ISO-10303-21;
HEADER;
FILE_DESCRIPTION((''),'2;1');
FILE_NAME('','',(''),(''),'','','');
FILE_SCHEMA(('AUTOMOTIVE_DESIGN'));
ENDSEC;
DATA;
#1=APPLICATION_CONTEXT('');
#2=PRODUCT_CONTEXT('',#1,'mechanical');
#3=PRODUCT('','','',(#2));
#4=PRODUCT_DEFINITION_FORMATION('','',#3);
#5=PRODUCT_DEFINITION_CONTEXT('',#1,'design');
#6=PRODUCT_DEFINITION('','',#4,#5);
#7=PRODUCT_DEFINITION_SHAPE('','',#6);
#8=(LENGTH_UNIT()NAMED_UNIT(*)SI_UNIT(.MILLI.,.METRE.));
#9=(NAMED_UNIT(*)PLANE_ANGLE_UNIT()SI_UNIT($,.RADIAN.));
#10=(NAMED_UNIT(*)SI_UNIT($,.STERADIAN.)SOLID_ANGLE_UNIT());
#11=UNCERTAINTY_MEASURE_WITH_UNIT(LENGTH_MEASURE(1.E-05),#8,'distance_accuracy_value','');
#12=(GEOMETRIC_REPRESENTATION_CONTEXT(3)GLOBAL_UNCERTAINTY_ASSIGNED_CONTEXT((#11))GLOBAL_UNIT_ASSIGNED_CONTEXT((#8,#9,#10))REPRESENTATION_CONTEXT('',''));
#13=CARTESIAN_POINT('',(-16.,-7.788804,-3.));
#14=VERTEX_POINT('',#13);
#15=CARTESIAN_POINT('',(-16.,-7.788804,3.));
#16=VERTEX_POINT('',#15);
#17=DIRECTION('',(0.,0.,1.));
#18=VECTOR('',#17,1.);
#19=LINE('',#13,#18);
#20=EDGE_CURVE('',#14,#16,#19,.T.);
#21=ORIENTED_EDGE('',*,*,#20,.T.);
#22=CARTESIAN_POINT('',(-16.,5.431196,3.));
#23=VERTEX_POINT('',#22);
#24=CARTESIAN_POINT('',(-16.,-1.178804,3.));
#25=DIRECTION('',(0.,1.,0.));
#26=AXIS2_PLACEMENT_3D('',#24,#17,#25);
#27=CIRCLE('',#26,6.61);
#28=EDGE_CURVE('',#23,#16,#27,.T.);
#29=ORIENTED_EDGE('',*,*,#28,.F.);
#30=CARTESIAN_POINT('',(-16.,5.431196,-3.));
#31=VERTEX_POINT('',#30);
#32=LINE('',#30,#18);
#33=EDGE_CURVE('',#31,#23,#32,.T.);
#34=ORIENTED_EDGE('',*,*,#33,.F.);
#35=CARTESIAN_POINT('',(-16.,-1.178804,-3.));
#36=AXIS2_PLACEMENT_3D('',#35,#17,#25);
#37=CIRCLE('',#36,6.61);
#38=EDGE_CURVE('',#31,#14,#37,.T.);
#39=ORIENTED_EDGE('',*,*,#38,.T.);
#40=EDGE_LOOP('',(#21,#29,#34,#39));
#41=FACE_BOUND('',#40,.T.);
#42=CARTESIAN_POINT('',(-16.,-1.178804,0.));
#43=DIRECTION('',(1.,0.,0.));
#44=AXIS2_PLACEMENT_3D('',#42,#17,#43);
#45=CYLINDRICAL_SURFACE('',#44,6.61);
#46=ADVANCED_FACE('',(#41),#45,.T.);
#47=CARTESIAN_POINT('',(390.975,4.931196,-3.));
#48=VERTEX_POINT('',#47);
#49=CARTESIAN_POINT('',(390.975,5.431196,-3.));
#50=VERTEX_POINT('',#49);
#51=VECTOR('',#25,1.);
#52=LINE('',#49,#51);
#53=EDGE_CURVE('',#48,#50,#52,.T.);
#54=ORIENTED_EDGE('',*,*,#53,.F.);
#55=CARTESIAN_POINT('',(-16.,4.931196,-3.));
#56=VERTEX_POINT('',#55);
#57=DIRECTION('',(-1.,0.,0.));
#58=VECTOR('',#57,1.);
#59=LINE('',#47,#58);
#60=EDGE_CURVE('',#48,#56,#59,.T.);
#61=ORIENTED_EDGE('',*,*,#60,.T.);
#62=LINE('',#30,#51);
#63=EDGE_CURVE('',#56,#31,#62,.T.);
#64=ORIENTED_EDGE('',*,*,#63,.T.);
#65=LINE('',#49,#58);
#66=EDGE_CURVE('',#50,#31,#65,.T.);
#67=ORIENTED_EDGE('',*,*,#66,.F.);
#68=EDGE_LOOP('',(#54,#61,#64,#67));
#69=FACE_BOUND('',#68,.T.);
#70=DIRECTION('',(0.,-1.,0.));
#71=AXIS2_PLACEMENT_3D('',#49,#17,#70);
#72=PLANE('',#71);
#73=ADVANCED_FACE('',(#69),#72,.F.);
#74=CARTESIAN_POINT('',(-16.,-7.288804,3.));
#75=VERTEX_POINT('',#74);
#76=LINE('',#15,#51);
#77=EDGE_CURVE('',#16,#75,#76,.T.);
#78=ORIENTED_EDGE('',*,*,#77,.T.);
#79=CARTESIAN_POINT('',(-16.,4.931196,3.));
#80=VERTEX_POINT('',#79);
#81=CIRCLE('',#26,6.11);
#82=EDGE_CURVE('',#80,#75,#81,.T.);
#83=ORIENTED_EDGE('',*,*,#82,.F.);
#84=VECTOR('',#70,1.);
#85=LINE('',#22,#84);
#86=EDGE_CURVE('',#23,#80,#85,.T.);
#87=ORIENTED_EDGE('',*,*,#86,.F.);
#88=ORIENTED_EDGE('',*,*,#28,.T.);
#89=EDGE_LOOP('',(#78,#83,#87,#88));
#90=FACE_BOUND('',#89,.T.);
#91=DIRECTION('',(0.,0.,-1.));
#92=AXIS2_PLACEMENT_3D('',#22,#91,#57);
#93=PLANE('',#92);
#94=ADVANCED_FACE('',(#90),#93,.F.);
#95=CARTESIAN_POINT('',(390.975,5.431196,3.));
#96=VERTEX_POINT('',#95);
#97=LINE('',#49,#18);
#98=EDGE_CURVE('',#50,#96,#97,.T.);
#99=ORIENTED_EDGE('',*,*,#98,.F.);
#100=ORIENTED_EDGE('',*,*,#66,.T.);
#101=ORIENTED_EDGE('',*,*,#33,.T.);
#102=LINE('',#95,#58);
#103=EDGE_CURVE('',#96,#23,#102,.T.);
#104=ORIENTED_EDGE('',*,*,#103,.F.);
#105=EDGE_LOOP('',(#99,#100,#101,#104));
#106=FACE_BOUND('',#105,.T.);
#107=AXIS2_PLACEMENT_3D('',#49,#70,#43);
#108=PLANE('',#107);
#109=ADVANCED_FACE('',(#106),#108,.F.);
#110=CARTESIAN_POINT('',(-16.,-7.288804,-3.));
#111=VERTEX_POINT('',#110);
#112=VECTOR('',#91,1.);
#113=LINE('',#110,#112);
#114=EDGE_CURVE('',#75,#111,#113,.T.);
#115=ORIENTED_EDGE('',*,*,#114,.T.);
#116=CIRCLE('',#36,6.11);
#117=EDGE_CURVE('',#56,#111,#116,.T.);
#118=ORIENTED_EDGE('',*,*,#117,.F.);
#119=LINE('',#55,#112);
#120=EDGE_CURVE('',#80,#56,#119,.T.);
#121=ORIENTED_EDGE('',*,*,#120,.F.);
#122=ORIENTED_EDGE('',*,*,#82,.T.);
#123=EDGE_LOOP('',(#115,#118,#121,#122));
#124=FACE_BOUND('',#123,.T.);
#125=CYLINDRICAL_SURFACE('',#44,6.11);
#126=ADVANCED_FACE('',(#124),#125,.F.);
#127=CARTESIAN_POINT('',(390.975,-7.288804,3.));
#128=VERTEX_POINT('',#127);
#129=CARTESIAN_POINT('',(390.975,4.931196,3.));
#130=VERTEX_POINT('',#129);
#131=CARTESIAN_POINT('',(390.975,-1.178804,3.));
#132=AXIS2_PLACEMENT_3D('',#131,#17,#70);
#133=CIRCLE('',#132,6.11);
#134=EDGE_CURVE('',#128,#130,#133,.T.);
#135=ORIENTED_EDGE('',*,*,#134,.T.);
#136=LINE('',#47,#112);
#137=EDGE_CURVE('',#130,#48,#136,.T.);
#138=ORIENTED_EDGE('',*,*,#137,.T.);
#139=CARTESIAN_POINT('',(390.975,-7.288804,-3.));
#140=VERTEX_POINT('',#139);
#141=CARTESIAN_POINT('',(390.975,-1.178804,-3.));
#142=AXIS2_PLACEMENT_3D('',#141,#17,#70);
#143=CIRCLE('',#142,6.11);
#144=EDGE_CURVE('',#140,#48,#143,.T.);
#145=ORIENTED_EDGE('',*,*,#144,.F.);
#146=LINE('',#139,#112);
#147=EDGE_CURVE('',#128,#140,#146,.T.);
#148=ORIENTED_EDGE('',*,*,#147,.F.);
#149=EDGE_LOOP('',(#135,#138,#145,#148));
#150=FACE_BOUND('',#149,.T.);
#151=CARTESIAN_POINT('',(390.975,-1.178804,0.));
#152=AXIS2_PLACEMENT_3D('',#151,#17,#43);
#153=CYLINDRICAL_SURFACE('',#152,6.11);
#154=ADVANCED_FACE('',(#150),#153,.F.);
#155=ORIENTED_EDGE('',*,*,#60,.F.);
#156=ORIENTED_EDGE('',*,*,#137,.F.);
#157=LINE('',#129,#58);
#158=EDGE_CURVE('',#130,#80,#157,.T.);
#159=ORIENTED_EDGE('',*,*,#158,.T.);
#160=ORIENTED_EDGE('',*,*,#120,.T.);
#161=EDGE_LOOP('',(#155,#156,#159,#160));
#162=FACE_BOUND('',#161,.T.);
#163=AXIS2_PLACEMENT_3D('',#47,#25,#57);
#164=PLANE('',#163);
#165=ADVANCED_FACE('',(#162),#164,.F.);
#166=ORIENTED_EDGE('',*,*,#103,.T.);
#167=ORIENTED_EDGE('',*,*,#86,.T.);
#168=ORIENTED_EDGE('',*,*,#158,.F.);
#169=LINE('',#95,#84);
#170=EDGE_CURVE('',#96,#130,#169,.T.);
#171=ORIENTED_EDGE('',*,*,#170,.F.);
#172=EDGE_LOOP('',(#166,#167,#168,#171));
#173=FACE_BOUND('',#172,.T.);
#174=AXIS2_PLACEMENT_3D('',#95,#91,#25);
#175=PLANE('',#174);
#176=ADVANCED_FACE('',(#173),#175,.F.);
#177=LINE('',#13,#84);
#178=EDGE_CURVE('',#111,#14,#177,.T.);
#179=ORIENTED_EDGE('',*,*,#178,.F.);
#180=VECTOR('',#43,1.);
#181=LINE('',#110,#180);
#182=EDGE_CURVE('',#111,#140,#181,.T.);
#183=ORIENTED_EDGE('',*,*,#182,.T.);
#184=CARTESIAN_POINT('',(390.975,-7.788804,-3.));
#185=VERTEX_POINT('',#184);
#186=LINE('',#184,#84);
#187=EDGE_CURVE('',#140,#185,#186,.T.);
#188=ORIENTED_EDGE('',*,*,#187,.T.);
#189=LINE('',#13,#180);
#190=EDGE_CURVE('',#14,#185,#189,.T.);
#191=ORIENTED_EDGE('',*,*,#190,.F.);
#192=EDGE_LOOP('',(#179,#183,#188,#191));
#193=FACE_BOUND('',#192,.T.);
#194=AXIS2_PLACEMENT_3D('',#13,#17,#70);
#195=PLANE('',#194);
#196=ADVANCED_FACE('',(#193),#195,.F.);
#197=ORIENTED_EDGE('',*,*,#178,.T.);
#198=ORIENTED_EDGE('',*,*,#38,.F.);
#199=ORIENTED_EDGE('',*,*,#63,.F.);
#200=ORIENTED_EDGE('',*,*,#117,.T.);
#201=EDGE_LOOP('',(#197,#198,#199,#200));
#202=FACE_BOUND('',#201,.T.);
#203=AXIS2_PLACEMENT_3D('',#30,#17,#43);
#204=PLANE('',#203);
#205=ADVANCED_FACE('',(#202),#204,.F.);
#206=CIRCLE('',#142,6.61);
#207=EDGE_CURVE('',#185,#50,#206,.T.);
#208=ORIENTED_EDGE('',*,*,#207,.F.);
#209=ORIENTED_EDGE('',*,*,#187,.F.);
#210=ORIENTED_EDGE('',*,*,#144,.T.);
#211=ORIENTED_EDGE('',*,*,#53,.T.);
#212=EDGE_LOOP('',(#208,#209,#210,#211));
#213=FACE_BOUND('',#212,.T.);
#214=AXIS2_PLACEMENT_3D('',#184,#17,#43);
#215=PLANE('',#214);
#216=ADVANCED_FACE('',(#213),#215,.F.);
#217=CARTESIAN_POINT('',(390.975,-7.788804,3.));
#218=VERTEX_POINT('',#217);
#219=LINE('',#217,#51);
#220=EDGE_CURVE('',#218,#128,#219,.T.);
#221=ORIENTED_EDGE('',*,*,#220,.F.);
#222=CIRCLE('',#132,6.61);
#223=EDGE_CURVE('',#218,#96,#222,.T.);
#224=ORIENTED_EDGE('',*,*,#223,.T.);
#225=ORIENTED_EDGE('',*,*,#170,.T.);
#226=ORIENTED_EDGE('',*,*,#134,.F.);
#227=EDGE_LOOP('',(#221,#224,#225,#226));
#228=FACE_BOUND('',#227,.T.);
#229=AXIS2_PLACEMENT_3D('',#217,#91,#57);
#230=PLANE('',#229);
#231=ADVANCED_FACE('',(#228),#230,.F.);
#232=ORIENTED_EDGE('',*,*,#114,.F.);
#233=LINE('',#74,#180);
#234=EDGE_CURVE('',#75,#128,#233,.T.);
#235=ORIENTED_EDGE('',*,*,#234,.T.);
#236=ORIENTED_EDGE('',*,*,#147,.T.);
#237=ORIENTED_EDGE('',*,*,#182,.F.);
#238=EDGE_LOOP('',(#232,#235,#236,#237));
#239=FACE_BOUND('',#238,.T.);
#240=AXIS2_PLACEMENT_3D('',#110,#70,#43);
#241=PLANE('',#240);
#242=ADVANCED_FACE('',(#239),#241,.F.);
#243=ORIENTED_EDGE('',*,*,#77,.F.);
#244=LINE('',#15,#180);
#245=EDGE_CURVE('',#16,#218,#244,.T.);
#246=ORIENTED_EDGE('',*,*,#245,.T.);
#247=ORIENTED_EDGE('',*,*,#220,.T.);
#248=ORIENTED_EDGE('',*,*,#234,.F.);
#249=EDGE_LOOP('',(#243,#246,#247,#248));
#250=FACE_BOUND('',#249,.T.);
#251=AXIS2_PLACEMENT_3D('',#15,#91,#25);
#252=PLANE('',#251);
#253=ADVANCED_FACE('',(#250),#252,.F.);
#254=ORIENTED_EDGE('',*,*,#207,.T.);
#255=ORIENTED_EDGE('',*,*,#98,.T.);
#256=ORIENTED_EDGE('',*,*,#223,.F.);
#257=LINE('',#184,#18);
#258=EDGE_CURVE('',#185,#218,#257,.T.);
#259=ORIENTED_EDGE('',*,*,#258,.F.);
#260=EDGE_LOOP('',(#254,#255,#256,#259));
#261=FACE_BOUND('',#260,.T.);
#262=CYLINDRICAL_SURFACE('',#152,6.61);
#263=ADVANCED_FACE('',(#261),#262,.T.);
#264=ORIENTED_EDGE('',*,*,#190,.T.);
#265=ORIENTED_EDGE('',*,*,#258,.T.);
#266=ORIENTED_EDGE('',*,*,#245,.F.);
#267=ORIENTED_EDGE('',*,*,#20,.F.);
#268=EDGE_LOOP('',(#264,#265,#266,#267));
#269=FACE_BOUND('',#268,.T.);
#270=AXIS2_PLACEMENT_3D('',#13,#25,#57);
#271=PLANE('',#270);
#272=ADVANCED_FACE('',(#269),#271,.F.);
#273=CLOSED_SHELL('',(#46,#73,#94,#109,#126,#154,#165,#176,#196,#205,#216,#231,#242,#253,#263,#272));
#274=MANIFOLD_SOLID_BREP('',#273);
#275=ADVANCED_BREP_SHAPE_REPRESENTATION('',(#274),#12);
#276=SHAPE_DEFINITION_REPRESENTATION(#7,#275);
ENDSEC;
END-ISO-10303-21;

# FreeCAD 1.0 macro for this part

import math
import FreeCAD as App
import Part
import Sketcher
Q = App.Units.Quantity


def add_polygon(sketch, points):
    """Adds a closed chain of lines whose ends are joined by coincident constraints."""
    first, n = sketch.GeometryCount, len(points)
    for a, b in zip(points, points[1:] + points[:1]):
        sketch.addGeometry(Part.LineSegment(App.Vector(*a, 0), App.Vector(*b, 0)), False)
    for i in range(n):
        sketch.addConstraint(Sketcher.Constraint("Coincident", first + i, 2, first + (i + 1) % n, 1))

doc = App.newDocument("Part")
body = doc.addObject("PartDesign::Body", "Body")

# Sketch on YZ plane
sketch1 = body.newObject("Sketcher::SketchObject", "Sketch")
sketch1.AttachmentSupport = (doc.getObject("YZ_Plane"), [""])
sketch1.MapMode = "FlatFace"
sketch1.AttachmentOffset = App.Placement(App.Vector(0, 0, -16), App.Rotation())
add_polygon(sketch1, [(5.4, 3), (4.9, 3), (4.9, -3), (5.4, -3)])  # lines 0-3
sketch1.addConstraint([
    Sketcher.Constraint("Horizontal", 0),
    Sketcher.Constraint("Vertical", 1),
    Sketcher.Constraint("Horizontal", 2),
    Sketcher.Constraint("Vertical", 3),
    Sketcher.Constraint("DistanceY", 1, 2, 1, 1, Q("6 mm")),
    Sketcher.Constraint("DistanceX", 0, 2, 0, 1, Q("0.5 mm")),
    Sketcher.Constraint("DistanceY", -1, 1, 0, 2, Q("3 mm")),
    Sketcher.Constraint("DistanceX", -1, 1, 0, 2, Q("4.931196 mm")),
])

# Sketch on XY plane
sketch2 = body.newObject("Sketcher::SketchObject", "Sketch001")
sketch2.AttachmentSupport = (doc.getObject("XY_Plane"), [""])
sketch2.MapMode = "FlatFace"
sketch2.addGeometry([
    Part.LineSegment(App.Vector(-16, 5, 0), App.Vector(391, 5, 0)),
    Part.ArcOfCircle(Part.Circle(App.Vector(391, -1, 0), App.Vector(0, 0, 1), 6), math.radians(-90), math.radians(90)),
    Part.LineSegment(App.Vector(391, -7, 0), App.Vector(-16, -7, 0)),
    Part.ArcOfCircle(Part.Circle(App.Vector(-16, -1, 0), App.Vector(0, 0, 1), 6), math.radians(90), math.radians(270)),
], False)
sketch2.addConstraint([
    Sketcher.Constraint("Tangent", 0, 2, 1, 2),
    Sketcher.Constraint("Tangent", 1, 1, 2, 1),
    Sketcher.Constraint("Tangent", 2, 2, 3, 2),
    Sketcher.Constraint("Tangent", 3, 1, 0, 1),
    Sketcher.Constraint("Horizontal", 0),
    Sketcher.Constraint("Horizontal", 2),
    Sketcher.Constraint("Radius", 1, Q("6.11 mm")),
    Sketcher.Constraint("DistanceX", 3, 3, -1, 1, Q("16 mm")),
    Sketcher.Constraint("DistanceX", 0, 1, 0, 2, Q("406.975 mm")),
    Sketcher.Constraint("DistanceY", 1, 3, -1, 1, Q("1.178804 mm")),
])
doc.recompute()

additivepipe = body.newObject("PartDesign::AdditivePipe", "AdditivePipe")
additivepipe.Profile = sketch1
additivepipe.Spine = (sketch2, ["Edge1", "Edge2", "Edge3", "Edge4"])

doc.recompute()
